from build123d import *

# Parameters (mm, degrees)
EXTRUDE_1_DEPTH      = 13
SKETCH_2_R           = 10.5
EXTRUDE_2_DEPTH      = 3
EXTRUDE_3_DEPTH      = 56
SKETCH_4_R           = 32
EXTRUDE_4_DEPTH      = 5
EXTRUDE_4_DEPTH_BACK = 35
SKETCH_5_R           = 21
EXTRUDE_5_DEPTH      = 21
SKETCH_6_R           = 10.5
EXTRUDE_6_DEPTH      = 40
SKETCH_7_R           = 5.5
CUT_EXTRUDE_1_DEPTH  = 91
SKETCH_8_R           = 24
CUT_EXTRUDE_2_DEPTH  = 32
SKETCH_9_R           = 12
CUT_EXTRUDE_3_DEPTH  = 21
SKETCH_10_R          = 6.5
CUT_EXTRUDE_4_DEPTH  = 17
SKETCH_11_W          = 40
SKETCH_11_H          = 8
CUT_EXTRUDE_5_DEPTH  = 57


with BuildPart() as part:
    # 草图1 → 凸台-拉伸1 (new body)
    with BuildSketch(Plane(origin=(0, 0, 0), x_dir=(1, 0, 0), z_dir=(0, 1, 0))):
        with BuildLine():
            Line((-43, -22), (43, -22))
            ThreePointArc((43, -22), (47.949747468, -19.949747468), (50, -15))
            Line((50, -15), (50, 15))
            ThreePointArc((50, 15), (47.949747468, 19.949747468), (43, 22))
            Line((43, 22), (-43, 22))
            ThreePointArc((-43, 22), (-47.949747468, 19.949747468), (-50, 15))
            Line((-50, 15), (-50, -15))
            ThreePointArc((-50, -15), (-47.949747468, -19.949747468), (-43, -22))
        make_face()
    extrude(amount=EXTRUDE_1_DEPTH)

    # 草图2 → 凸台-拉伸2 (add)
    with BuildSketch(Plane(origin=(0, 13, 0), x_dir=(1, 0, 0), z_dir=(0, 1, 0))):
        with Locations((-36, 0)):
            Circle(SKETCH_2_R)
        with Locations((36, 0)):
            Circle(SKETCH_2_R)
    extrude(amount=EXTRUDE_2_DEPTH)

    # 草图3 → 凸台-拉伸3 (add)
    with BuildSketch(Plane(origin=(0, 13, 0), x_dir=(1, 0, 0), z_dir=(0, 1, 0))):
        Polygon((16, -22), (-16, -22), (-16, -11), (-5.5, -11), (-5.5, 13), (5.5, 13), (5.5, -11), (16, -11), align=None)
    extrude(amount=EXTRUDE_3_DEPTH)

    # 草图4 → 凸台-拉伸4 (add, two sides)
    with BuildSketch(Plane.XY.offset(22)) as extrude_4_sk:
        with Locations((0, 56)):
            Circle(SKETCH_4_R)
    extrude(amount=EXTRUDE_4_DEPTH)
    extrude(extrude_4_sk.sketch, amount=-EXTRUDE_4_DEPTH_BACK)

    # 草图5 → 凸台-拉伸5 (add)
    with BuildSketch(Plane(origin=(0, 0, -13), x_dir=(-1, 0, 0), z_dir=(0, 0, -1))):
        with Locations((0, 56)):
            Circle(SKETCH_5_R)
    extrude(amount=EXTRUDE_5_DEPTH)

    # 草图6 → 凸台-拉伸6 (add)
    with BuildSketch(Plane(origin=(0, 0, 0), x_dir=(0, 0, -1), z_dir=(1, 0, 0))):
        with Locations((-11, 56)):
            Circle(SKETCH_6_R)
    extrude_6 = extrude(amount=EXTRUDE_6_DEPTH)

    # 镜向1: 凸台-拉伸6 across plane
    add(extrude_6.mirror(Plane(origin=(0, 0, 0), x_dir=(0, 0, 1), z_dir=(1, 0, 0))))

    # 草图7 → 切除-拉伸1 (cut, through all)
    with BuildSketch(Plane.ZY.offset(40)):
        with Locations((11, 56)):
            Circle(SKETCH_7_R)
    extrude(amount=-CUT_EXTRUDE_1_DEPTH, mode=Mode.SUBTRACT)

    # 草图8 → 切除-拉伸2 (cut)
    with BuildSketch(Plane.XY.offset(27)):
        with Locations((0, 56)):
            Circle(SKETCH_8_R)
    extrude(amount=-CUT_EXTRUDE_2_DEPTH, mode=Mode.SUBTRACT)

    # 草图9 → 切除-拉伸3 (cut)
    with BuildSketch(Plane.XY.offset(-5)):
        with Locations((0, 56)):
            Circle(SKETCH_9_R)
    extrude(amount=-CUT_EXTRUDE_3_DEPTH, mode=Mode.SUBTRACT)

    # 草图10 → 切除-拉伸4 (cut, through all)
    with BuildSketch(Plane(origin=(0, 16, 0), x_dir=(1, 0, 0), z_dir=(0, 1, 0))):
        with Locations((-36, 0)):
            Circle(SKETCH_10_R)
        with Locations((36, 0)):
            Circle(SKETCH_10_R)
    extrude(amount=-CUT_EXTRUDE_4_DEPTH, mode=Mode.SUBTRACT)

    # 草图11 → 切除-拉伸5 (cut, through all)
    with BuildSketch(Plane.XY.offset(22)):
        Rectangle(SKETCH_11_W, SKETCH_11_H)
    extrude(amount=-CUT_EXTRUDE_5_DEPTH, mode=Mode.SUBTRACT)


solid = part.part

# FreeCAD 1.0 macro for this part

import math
import FreeCAD as App
import Part
import Sketcher
from FreeCAD import Vector

doc = App.newDocument("Part")
body = doc.addObject("PartDesign::Body", "Body")

sketch1 = body.newObject("Sketcher::SketchObject", "Sketch")
sketch1.AttachmentSupport = (doc.getObject("XZ_Plane"), [""])
sketch1.MapMode = "FlatFace"
sketch1.addGeometry([
    Part.LineSegment(Vector(-43, 22, 0), Vector(43, 22, 0)),
    Part.ArcOfCircle(Part.Circle(Vector(43, 15, 0), Vector(0, 0, 1), 7), math.radians(0), math.radians(90)),
    Part.LineSegment(Vector(50, 15, 0), Vector(50, -15, 0)),
    Part.ArcOfCircle(Part.Circle(Vector(43, -15, 0), Vector(0, 0, 1), 7), math.radians(-90), math.radians(0)),
    Part.LineSegment(Vector(43, -22, 0), Vector(-43, -22, 0)),
    Part.ArcOfCircle(Part.Circle(Vector(-43, -15, 0), Vector(0, 0, 1), 7), math.radians(-180), math.radians(-90)),
    Part.LineSegment(Vector(-50, -15, 0), Vector(-50, 15, 0)),
    Part.ArcOfCircle(Part.Circle(Vector(-43, 15, 0), Vector(0, 0, 1), 7), math.radians(90), math.radians(180)),
], False)
sketch1.addConstraint([
    Sketcher.Constraint("Tangent", 0, 2, 1, 2),
    Sketcher.Constraint("Tangent", 1, 1, 2, 1),
    Sketcher.Constraint("Tangent", 2, 2, 3, 2),
    Sketcher.Constraint("Tangent", 3, 1, 4, 1),
    Sketcher.Constraint("Tangent", 4, 2, 5, 2),
    Sketcher.Constraint("Tangent", 5, 1, 6, 1),
    Sketcher.Constraint("Tangent", 6, 2, 7, 2),
    Sketcher.Constraint("Tangent", 7, 1, 0, 1),
    Sketcher.Constraint("Horizontal", 0),
    Sketcher.Constraint("Vertical", 2),
    Sketcher.Constraint("Horizontal", 4),
    Sketcher.Constraint("Vertical", 6),
    Sketcher.Constraint("Equal", 1, 3),
    Sketcher.Constraint("Equal", 3, 5),
    Sketcher.Constraint("Equal", 5, 7),
    Sketcher.Constraint("Symmetric", 1, 3, 5, 3, -1, 1),
    Sketcher.Constraint("Radius", 1, 7.0),
    Sketcher.Constraint("DistanceX", 0, 1, 0, 2, 86.0),
    Sketcher.Constraint("DistanceY", 2, 2, 2, 1, 30.0),
])
pad1 = body.newObject("PartDesign::Pad", "Pad")
pad1.Profile = sketch1
pad1.Length = 13
pad1.Reversed = True

sketch2 = body.newObject("Sketcher::SketchObject", "Sketch001")
sketch2.AttachmentSupport = (doc.getObject("XZ_Plane"), [""])
sketch2.MapMode = "FlatFace"
sketch2.AttachmentOffset = App.Placement(Vector(0, 0, -13), App.Rotation())
sketch2.addGeometry([
    Part.Circle(Vector(-36, 0, 0), Vector(0, 0, 1), 10),
    Part.Circle(Vector(36, 0, 0), Vector(0, 0, 1), 10),
], False)
sketch2.addConstraint([
    Sketcher.Constraint("Equal", 0, 1),
    Sketcher.Constraint("Symmetric", 0, 3, 1, 3, -1, 1),
    Sketcher.Constraint("PointOnObject", 0, 3, -1),
    Sketcher.Constraint("Diameter", 0, 21.0),
    Sketcher.Constraint("DistanceX", 0, 3, -1, 1, 36.0),
])
pad2 = body.newObject("PartDesign::Pad", "Pad001")
pad2.Profile = sketch2
pad2.Length = 3
pad2.Reversed = True

sketch3 = body.newObject("Sketcher::SketchObject", "Sketch002")
sketch3.AttachmentSupport = (doc.getObject("XZ_Plane"), [""])
sketch3.MapMode = "FlatFace"
sketch3.AttachmentOffset = App.Placement(Vector(0, 0, -13), App.Rotation())
sketch3.addGeometry([
    Part.LineSegment(Vector(-16, 22, 0), Vector(16, 22, 0)),
    Part.LineSegment(Vector(16, 22, 0), Vector(16, 11, 0)),
    Part.LineSegment(Vector(16, 11, 0), Vector(6, 11, 0)),
    Part.LineSegment(Vector(6, 11, 0), Vector(6, -13, 0)),
    Part.LineSegment(Vector(6, -13, 0), Vector(-6, -13, 0)),
    Part.LineSegment(Vector(-6, -13, 0), Vector(-6, 11, 0)),
    Part.LineSegment(Vector(-6, 11, 0), Vector(-16, 11, 0)),
    Part.LineSegment(Vector(-16, 11, 0), Vector(-16, 22, 0)),
], False)
sketch3.addConstraint([
    Sketcher.Constraint("Coincident", 0, 2, 1, 1),
    Sketcher.Constraint("Coincident", 1, 2, 2, 1),
    Sketcher.Constraint("Coincident", 2, 2, 3, 1),
    Sketcher.Constraint("Coincident", 3, 2, 4, 1),
    Sketcher.Constraint("Coincident", 4, 2, 5, 1),
    Sketcher.Constraint("Coincident", 5, 2, 6, 1),
    Sketcher.Constraint("Coincident", 6, 2, 7, 1),
    Sketcher.Constraint("Coincident", 7, 2, 0, 1),
    Sketcher.Constraint("Horizontal", 0),
    Sketcher.Constraint("Vertical", 1),
    Sketcher.Constraint("Horizontal", 2),
    Sketcher.Constraint("Vertical", 3),
    Sketcher.Constraint("Horizontal", 4),
    Sketcher.Constraint("Vertical", 5),
    Sketcher.Constraint("Horizontal", 6),
    Sketcher.Constraint("Vertical", 7),
    Sketcher.Constraint("Symmetric", 2, 2, 5, 2, -2),
    Sketcher.Constraint("Equal", 2, 6),
    Sketcher.Constraint("Equal", 4, 1),
    Sketcher.Constraint("DistanceX", 0, 1, 0, 2, 32.0),
    Sketcher.Constraint("DistanceX", 4, 2, 4, 1, 11.0),
    Sketcher.Constraint("DistanceY", 3, 2, 3, 1, 24.0),
    Sketcher.Constraint("DistanceY", -1, 1, 0, 2, 22.0),
])
pad3 = body.newObject("PartDesign::Pad", "Pad002")
pad3.Profile = sketch3
pad3.Length = 56
pad3.Reversed = True

sketch4 = body.newObject("Sketcher::SketchObject", "Sketch003")
sketch4.AttachmentSupport = (doc.getObject("XY_Plane"), [""])
sketch4.MapMode = "FlatFace"
sketch4.AttachmentOffset = App.Placement(Vector(0, 0, 22), App.Rotation())
sketch4.addGeometry(Part.Circle(Vector(0, 56, 0), Vector(0, 0, 1), 32), False)
sketch4.addConstraint([
    Sketcher.Constraint("PointOnObject", 0, 3, -2),
    Sketcher.Constraint("Diameter", 0, 64.0),
    Sketcher.Constraint("DistanceY", -1, 1, 0, 3, 56.0),
])
pad4 = body.newObject("PartDesign::Pad", "Pad003")
pad4.Profile = sketch4
pad4.Type = "TwoLengths"
pad4.Length = 5
pad4.Length2 = 35

sketch5 = body.newObject("Sketcher::SketchObject", "Sketch004")
sketch5.AttachmentSupport = (doc.getObject("XY_Plane"), [""])
sketch5.MapMode = "FlatFace"
sketch5.AttachmentOffset = App.Placement(Vector(0, 0, -13), App.Rotation())
sketch5.addGeometry(Part.Circle(Vector(0, 56, 0), Vector(0, 0, 1), 21), False)
sketch5.addConstraint([
    Sketcher.Constraint("PointOnObject", 0, 3, -2),
    Sketcher.Constraint("Diameter", 0, 42.0),
    Sketcher.Constraint("DistanceY", -1, 1, 0, 3, 56.0),
])
pad5 = body.newObject("PartDesign::Pad", "Pad004")
pad5.Profile = sketch5
pad5.Length = 21
pad5.Reversed = True

sketch6 = body.newObject("Sketcher::SketchObject", "Sketch005")
sketch6.AttachmentSupport = (doc.getObject("YZ_Plane"), [""])
sketch6.MapMode = "FlatFace"
sketch6.addGeometry(Part.Circle(Vector(56, 11, 0), Vector(0, 0, 1), 10), False)
sketch6.addConstraint([
    Sketcher.Constraint("Diameter", 0, 21.0),
    Sketcher.Constraint("DistanceX", -1, 1, 0, 3, 56.0),
    Sketcher.Constraint("DistanceY", -1, 1, 0, 3, 11.0),
])
pad6 = body.newObject("PartDesign::Pad", "Pad005")
pad6.Profile = sketch6
pad6.Length = 40
doc.recompute()

mirrored = body.newObject("PartDesign::Mirrored", "Mirrored")
mirrored.Originals = [pad6]
mirrored.MirrorPlane = (doc.getObject("YZ_Plane"), [""])
body.Tip = mirrored

sketch7 = body.newObject("Sketcher::SketchObject", "Sketch006")
sketch7.AttachmentSupport = (doc.getObject("YZ_Plane"), [""])
sketch7.MapMode = "FlatFace"
sketch7.AttachmentOffset = App.Placement(Vector(0, 0, -40), App.Rotation())
sketch7.addGeometry(Part.Circle(Vector(56, 11, 0), Vector(0, 0, 1), 6), False)
sketch7.addConstraint([
    Sketcher.Constraint("Diameter", 0, 11.0),
    Sketcher.Constraint("DistanceX", -1, 1, 0, 3, 56.0),
    Sketcher.Constraint("DistanceY", -1, 1, 0, 3, 11.0),
])
pocket1 = body.newObject("PartDesign::Pocket", "Pocket")
pocket1.Profile = sketch7
pocket1.Type = "ThroughAll"
pocket1.Reversed = True

sketch8 = body.newObject("Sketcher::SketchObject", "Sketch007")
sketch8.AttachmentSupport = (doc.getObject("XY_Plane"), [""])
sketch8.MapMode = "FlatFace"
sketch8.AttachmentOffset = App.Placement(Vector(0, 0, 27), App.Rotation())
sketch8.addGeometry(Part.Circle(Vector(0, 56, 0), Vector(0, 0, 1), 24), False)
sketch8.addConstraint([
    Sketcher.Constraint("PointOnObject", 0, 3, -2),
    Sketcher.Constraint("Diameter", 0, 48.0),
    Sketcher.Constraint("DistanceY", -1, 1, 0, 3, 56.0),
])
pocket2 = body.newObject("PartDesign::Pocket", "Pocket001")
pocket2.Profile = sketch8
pocket2.Length = 32

sketch9 = body.newObject("Sketcher::SketchObject", "Sketch008")
sketch9.AttachmentSupport = (doc.getObject("XY_Plane"), [""])
sketch9.MapMode = "FlatFace"
sketch9.AttachmentOffset = App.Placement(Vector(0, 0, -5), App.Rotation())
sketch9.addGeometry(Part.Circle(Vector(0, 56, 0), Vector(0, 0, 1), 12), False)
sketch9.addConstraint([
    Sketcher.Constraint("PointOnObject", 0, 3, -2),
    Sketcher.Constraint("Diameter", 0, 24.0),
    Sketcher.Constraint("DistanceY", -1, 1, 0, 3, 56.0),
])
pocket3 = body.newObject("PartDesign::Pocket", "Pocket002")
pocket3.Profile = sketch9
pocket3.Length = 21

sketch10 = body.newObject("Sketcher::SketchObject", "Sketch009")
sketch10.AttachmentSupport = (doc.getObject("XZ_Plane"), [""])
sketch10.MapMode = "FlatFace"
sketch10.AttachmentOffset = App.Placement(Vector(0, 0, -16), App.Rotation())
sketch10.addGeometry([
    Part.Circle(Vector(-36, 0, 0), Vector(0, 0, 1), 6),
    Part.Circle(Vector(36, 0, 0), Vector(0, 0, 1), 6),
], False)
sketch10.addConstraint([
    Sketcher.Constraint("Equal", 0, 1),
    Sketcher.Constraint("Symmetric", 0, 3, 1, 3, -1, 1),
    Sketcher.Constraint("PointOnObject", 0, 3, -1),
    Sketcher.Constraint("Diameter", 0, 13.0),
    Sketcher.Constraint("DistanceX", 0, 3, -1, 1, 36.0),
])
pocket4 = body.newObject("PartDesign::Pocket", "Pocket003")
pocket4.Profile = sketch10
pocket4.Type = "ThroughAll"
pocket4.Reversed = True

sketch11 = body.newObject("Sketcher::SketchObject", "Sketch010")
sketch11.AttachmentSupport = (doc.getObject("XY_Plane"), [""])
sketch11.MapMode = "FlatFace"
sketch11.AttachmentOffset = App.Placement(Vector(0, 0, 22), App.Rotation())
sketch11.addGeometry([
    Part.LineSegment(Vector(-20, 4, 0), Vector(-20, -4, 0)),
    Part.LineSegment(Vector(-20, -4, 0), Vector(20, -4, 0)),
    Part.LineSegment(Vector(20, -4, 0), Vector(20, 4, 0)),
    Part.LineSegment(Vector(20, 4, 0), Vector(-20, 4, 0)),
], False)
sketch11.addConstraint([
    Sketcher.Constraint("Coincident", 0, 2, 1, 1),
    Sketcher.Constraint("Coincident", 1, 2, 2, 1),
    Sketcher.Constraint("Coincident", 2, 2, 3, 1),
    Sketcher.Constraint("Coincident", 3, 2, 0, 1),
    Sketcher.Constraint("Vertical", 0),
    Sketcher.Constraint("Horizontal", 1),
    Sketcher.Constraint("Vertical", 2),
    Sketcher.Constraint("Horizontal", 3),
    Sketcher.Constraint("Symmetric", 0, 2, 2, 2, -1, 1),
    Sketcher.Constraint("DistanceX", 1, 1, 1, 2, 40.0),
    Sketcher.Constraint("DistanceY", 0, 2, 0, 1, 8.0),
])
pocket5 = body.newObject("PartDesign::Pocket", "Pocket004")
pocket5.Profile = sketch11
pocket5.Type = "ThroughAll"

doc.recompute()
